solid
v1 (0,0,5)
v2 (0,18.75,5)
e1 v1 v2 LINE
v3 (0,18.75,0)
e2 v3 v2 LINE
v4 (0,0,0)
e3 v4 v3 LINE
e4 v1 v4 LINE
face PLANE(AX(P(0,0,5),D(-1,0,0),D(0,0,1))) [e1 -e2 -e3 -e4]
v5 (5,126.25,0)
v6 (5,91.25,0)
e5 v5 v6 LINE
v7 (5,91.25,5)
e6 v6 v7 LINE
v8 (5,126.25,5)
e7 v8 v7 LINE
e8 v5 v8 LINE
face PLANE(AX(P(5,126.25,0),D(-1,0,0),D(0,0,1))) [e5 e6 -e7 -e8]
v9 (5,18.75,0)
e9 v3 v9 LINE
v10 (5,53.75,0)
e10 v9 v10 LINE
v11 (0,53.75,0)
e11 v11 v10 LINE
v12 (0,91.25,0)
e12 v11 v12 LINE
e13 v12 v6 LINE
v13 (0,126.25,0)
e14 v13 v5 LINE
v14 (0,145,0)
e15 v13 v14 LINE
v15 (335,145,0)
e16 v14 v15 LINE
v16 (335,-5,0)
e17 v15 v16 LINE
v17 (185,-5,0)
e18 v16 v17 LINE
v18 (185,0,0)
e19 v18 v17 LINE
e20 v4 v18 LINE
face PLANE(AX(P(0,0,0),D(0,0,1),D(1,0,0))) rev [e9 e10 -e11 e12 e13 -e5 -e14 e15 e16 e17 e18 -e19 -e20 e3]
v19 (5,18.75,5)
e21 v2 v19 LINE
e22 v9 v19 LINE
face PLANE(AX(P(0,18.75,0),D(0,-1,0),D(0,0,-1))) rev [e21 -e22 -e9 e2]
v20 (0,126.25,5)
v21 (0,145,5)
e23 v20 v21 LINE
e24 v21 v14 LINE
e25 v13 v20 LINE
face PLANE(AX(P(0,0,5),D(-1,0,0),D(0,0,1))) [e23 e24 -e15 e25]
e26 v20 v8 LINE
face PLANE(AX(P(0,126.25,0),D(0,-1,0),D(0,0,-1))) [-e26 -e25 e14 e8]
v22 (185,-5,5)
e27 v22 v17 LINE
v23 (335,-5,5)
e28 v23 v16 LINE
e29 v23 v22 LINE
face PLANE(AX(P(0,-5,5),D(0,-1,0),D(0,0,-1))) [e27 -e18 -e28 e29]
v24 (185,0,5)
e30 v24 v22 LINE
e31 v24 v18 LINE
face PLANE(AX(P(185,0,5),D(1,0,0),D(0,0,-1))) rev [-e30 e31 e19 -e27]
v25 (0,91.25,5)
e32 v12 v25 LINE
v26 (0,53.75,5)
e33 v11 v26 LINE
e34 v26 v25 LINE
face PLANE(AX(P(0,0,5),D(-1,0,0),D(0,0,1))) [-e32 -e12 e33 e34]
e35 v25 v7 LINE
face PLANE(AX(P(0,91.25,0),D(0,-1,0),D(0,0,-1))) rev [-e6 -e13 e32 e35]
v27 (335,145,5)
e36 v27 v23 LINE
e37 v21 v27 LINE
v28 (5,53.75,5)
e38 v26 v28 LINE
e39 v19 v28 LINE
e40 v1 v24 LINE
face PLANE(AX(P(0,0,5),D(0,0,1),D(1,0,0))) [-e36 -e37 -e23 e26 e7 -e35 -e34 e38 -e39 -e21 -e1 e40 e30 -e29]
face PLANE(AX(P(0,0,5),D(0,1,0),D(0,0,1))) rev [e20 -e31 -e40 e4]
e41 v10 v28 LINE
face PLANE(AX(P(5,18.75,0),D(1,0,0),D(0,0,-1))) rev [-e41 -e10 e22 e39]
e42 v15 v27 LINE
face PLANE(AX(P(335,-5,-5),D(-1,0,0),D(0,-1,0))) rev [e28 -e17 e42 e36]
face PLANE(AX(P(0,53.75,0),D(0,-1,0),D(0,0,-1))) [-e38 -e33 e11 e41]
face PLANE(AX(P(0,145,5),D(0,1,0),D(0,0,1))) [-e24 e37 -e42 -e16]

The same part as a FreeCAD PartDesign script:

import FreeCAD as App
import Part
import Sketcher
from FreeCAD import Vector
Q = App.Units.Quantity


def add_polygon(sketch, points):
    """Adds a closed chain of lines whose ends are joined by coincident constraints."""
    first, n = sketch.GeometryCount, len(points)
    for a, b in zip(points, points[1:] + points[:1]):
        sketch.addGeometry(Part.LineSegment(App.Vector(*a, 0), App.Vector(*b, 0)), False)
    for i in range(n):
        sketch.addConstraint(Sketcher.Constraint("Coincident", first + i, 2, first + (i + 1) % n, 1))

doc = App.newDocument("Part")
body = doc.addObject("PartDesign::Body", "Body")

# Sketch on XY plane
sketch1 = body.newObject("Sketcher::SketchObject", "Sketch")
sketch1.AttachmentSupport = (doc.getObject("XY_Plane"), [""])
sketch1.MapMode = "FlatFace"
add_polygon(sketch1, [(0, 145), (0, 0), (185, 0), (185, -5), (485, -5), (485, 0), (670, 0), (670, -5), (970, -5), (970, 0), (1155, 0), (1155, -5), (1455, -5), (1455, 0), (1640, 0), (1640, 145)])  # lines 0-15
sketch1.addConstraint([
    Sketcher.Constraint("Vertical", 0),
    Sketcher.Constraint("Horizontal", 1),
    Sketcher.Constraint("Vertical", 2),
    Sketcher.Constraint("Horizontal", 3),
    Sketcher.Constraint("Vertical", 4),
    Sketcher.Constraint("Horizontal", 5),
    Sketcher.Constraint("Vertical", 6),
    Sketcher.Constraint("Horizontal", 7),
    Sketcher.Constraint("Vertical", 8),
    Sketcher.Constraint("Horizontal", 9),
    Sketcher.Constraint("Vertical", 10),
    Sketcher.Constraint("Horizontal", 11),
    Sketcher.Constraint("Vertical", 12),
    Sketcher.Constraint("Horizontal", 13),
    Sketcher.Constraint("Vertical", 14),
    Sketcher.Constraint("Horizontal", 15),
    Sketcher.Constraint("Coincident", 0, 2, -1, 1),
    Sketcher.Constraint("PointOnObject", 4, 2, -1),
    Sketcher.Constraint("PointOnObject", 8, 2, -1),
    Sketcher.Constraint("PointOnObject", 12, 2, -1),
    Sketcher.Constraint("Horizontal", 3, 2, 6, 2),
    Sketcher.Constraint("Horizontal", 7, 2, 10, 2),
    Sketcher.Constraint("Equal", 1, 5),
    Sketcher.Constraint("Equal", 3, 7),
    Sketcher.Constraint("Equal", 5, 9),
    Sketcher.Constraint("Equal", 7, 11),
    Sketcher.Constraint("Equal", 9, 13),
    Sketcher.Constraint("DistanceX", 1, 1, 1, 2, Q("185 mm")),
    Sketcher.Constraint("DistanceX", 3, 1, 3, 2, Q("300 mm")),
    Sketcher.Constraint("DistanceY", 0, 2, 0, 1, Q("145 mm")),
    Sketcher.Constraint("DistanceY", 2, 2, 2, 1, Q("5 mm")),
])
pad1 = body.newObject("PartDesign::Pad", "Pad")
pad1.Profile = sketch1
pad1.Length = 5

# Sketch on XY plane
sketch2 = body.newObject("Sketcher::SketchObject", "Sketch001")
sketch2.AttachmentSupport = (doc.getObject("XY_Plane"), [""])
sketch2.MapMode = "FlatFace"
sketch2.AttachmentOffset = App.Placement(Vector(0, 0, 5), App.Rotation())
add_polygon(sketch2, [(1635, 126.25), (1635, 91.25), (1640, 91.25), (1640, 126.25)])  # lines 0-3
add_polygon(sketch2, [(1635, 53.75), (1635, 18.75), (1640, 18.75), (1640, 53.75)])  # lines 4-7
add_polygon(sketch2, [(0, 53.75), (0, 18.75), (5, 18.75), (5, 53.75)])  # lines 8-11
add_polygon(sketch2, [(0, 126.25), (0, 91.25), (5, 91.25), (5, 126.25)])  # lines 12-15
sketch2.addConstraint([
    Sketcher.Constraint("Vertical", 0),
    Sketcher.Constraint("Horizontal", 1),
    Sketcher.Constraint("Vertical", 2),
    Sketcher.Constraint("Horizontal", 3),
    Sketcher.Constraint("Vertical", 4),
    Sketcher.Constraint("Horizontal", 5),
    Sketcher.Constraint("Vertical", 6),
    Sketcher.Constraint("Horizontal", 7),
    Sketcher.Constraint("Vertical", 8),
    Sketcher.Constraint("Horizontal", 9),
    Sketcher.Constraint("Vertical", 10),
    Sketcher.Constraint("Horizontal", 11),
    Sketcher.Constraint("Vertical", 12),
    Sketcher.Constraint("Horizontal", 13),
    Sketcher.Constraint("Vertical", 14),
    Sketcher.Constraint("Horizontal", 15),
    Sketcher.Constraint("PointOnObject", 8, 2, -2),
    Sketcher.Constraint("PointOnObject", 12, 2, -2),
    Sketcher.Constraint("Horizontal", 5, 2, 8, 2),
    Sketcher.Constraint("Horizontal", 7, 2, 10, 2),
    Sketcher.Constraint("Horizontal", 1, 2, 12, 2),
    Sketcher.Constraint("Horizontal", 3, 2, 14, 2),
    Sketcher.Constraint("Vertical", 3, 2, 4, 2),
    Sketcher.Constraint("Vertical", 2, 2, 5, 2),
    Sketcher.Constraint("Vertical", 10, 2, 13, 2),
    Sketcher.Constraint("Equal", 7, 9),
    Sketcher.Constraint("Equal", 2, 4),
    Sketcher.Constraint("DistanceX", 1, 1, 1, 2, Q("5 mm")),
    Sketcher.Constraint("DistanceY", 0, 2, 0, 1, Q("35 mm")),
    Sketcher.Constraint("DistanceX", -1, 1, 0, 2, Q("1635 mm")),
    Sketcher.Constraint("DistanceY", 4, 2, 0, 2, Q("72.5 mm")),
    Sketcher.Constraint("DistanceY", -1, 1, 0, 2, Q("91.25 mm")),
])
pocket1 = body.newObject("PartDesign::Pocket", "Pocket")
pocket1.Profile = sketch2
pocket1.Length = 5

# Sketch on XY plane
sketch3 = body.newObject("Sketcher::SketchObject", "Sketch002")
sketch3.AttachmentSupport = (doc.getObject("XY_Plane"), [""])
sketch3.MapMode = "FlatFace"
sketch3.AttachmentOffset = App.Placement(Vector(0, 0, 5), App.Rotation())
add_polygon(sketch3, [(575.7, 0), (579.3, 0), (579.3, 5), (581.1, 5), (581.1, 8.2), (579.3, 8.2), (579.3, 17.2), (575.7, 17.2), (575.7, 8.2), (573.9, 8.2), (573.9, 5), (575.7, 5)])  # lines 0-11
add_polygon(sketch3, [(1064.3, 8.2), (1064.3, 17.2), (1060.7, 17.2), (1060.7, 8.2), (1058.9, 8.2), (1058.9, 5), (1060.7, 5), (1060.7, 0), (1064.3, 0), (1064.3, 5), (1066.1, 5), (1066.1, 8.2)])  # lines 12-23
sketch3.addConstraint([
    Sketcher.Constraint("Horizontal", 0),
    Sketcher.Constraint("Vertical", 1),
    Sketcher.Constraint("Horizontal", 2),
    Sketcher.Constraint("Vertical", 3),
    Sketcher.Constraint("Horizontal", 4),
    Sketcher.Constraint("Vertical", 5),
    Sketcher.Constraint("Horizontal", 6),
    Sketcher.Constraint("Vertical", 7),
    Sketcher.Constraint("Horizontal", 8),
    Sketcher.Constraint("Vertical", 9),
    Sketcher.Constraint("Horizontal", 10),
    Sketcher.Constraint("Vertical", 11),
    Sketcher.Constraint("Vertical", 12),
    Sketcher.Constraint("Horizontal", 13),
    Sketcher.Constraint("Vertical", 14),
    Sketcher.Constraint("Horizontal", 15),
    Sketcher.Constraint("Vertical", 16),
    Sketcher.Constraint("Horizontal", 17),
    Sketcher.Constraint("Vertical", 18),
    Sketcher.Constraint("Horizontal", 19),
    Sketcher.Constraint("Vertical", 20),
    Sketcher.Constraint("Horizontal", 21),
    Sketcher.Constraint("Vertical", 22),
    Sketcher.Constraint("Horizontal", 23),
    Sketcher.Constraint("PointOnObject", 0, 2, -1),
    Sketcher.Constraint("PointOnObject", 18, 2, -1),
    Sketcher.Constraint("Horizontal", 4, 2, 7, 2),
    Sketcher.Constraint("Horizontal", 2, 2, 9, 2),
    Sketcher.Constraint("Horizontal", 6, 2, 12, 2),
    Sketcher.Constraint("Horizontal", 8, 2, 14, 2),
    Sketcher.Constraint("Horizontal", 10, 2, 16, 2),
    Sketcher.Constraint("Horizontal", 17, 2, 20, 2),
    Sketcher.Constraint("Horizontal", 15, 2, 22, 2),
    Sketcher.Constraint("Vertical", 1, 2, 4, 2),
    Sketcher.Constraint("Vertical", 7, 2, 10, 2),
    Sketcher.Constraint("Vertical", 14, 2, 17, 2),
    Sketcher.Constraint("Vertical", 12, 2, 19, 2),
    Sketcher.Constraint("Equal", 4, 8),
    Sketcher.Constraint("Equal", 6, 13),
    Sketcher.Constraint("Equal", 10, 15),
    Sketcher.Constraint("Equal", 17, 21),
    Sketcher.Constraint("DistanceY", 1, 1, 1, 2, Q("5 mm")),
    Sketcher.Constraint("DistanceY", 5, 1, 5, 2, Q("9 mm")),
    Sketcher.Constraint("DistanceX", 0, 1, 0, 2, Q("3.6 mm")),
    Sketcher.Constraint("DistanceX", 2, 1, 2, 2, Q("1.8 mm")),
    Sketcher.Constraint("DistanceY", 3, 1, 3, 2, Q("3.2 mm")),
    Sketcher.Constraint("DistanceX", 5, 2, 12, 2, Q("485 mm")),
    Sketcher.Constraint("DistanceX", -1, 1, 0, 2, Q("579.3 mm")),
])
pocket2 = body.newObject("PartDesign::Pocket", "Pocket001")
pocket2.Profile = sketch3
pocket2.Length = 10

# Sketch on XY plane
sketch4 = body.newObject("Sketcher::SketchObject", "Sketch003")
sketch4.AttachmentSupport = (doc.getObject("XY_Plane"), [""])
sketch4.MapMode = "FlatFace"
sketch4.AttachmentOffset = App.Placement(Vector(0, 0, 5), App.Rotation())
add_polygon(sketch4, [(335, 145), (335, -87.562681), (1671.122375, -141.538372), (1640, 145)])  # lines 0-3
sketch4.addConstraint([
    Sketcher.Constraint("Vertical", 0),
    Sketcher.Constraint("Horizontal", 3),
    Sketcher.Constraint("DistanceX", 3, 2, 3, 1, Q("1305 mm")),
    Sketcher.Constraint("DistanceX", -1, 1, 0, 2, Q("335 mm")),
    Sketcher.Constraint("DistanceY", -1, 1, 2, 2, Q("145 mm")),
    Sketcher.Constraint("DistanceY", 0, 2, 0, 1, Q("232.562681 mm")),
    Sketcher.Constraint("DistanceY", 1, 2, 0, 2, Q("53.975692 mm")),
    Sketcher.Constraint("Distance", 1, Q("1337.212166 mm")),
])
pocket3 = body.newObject("PartDesign::Pocket", "Pocket002")
pocket3.Profile = sketch4
pocket3.Length = 10

doc.recompute()
